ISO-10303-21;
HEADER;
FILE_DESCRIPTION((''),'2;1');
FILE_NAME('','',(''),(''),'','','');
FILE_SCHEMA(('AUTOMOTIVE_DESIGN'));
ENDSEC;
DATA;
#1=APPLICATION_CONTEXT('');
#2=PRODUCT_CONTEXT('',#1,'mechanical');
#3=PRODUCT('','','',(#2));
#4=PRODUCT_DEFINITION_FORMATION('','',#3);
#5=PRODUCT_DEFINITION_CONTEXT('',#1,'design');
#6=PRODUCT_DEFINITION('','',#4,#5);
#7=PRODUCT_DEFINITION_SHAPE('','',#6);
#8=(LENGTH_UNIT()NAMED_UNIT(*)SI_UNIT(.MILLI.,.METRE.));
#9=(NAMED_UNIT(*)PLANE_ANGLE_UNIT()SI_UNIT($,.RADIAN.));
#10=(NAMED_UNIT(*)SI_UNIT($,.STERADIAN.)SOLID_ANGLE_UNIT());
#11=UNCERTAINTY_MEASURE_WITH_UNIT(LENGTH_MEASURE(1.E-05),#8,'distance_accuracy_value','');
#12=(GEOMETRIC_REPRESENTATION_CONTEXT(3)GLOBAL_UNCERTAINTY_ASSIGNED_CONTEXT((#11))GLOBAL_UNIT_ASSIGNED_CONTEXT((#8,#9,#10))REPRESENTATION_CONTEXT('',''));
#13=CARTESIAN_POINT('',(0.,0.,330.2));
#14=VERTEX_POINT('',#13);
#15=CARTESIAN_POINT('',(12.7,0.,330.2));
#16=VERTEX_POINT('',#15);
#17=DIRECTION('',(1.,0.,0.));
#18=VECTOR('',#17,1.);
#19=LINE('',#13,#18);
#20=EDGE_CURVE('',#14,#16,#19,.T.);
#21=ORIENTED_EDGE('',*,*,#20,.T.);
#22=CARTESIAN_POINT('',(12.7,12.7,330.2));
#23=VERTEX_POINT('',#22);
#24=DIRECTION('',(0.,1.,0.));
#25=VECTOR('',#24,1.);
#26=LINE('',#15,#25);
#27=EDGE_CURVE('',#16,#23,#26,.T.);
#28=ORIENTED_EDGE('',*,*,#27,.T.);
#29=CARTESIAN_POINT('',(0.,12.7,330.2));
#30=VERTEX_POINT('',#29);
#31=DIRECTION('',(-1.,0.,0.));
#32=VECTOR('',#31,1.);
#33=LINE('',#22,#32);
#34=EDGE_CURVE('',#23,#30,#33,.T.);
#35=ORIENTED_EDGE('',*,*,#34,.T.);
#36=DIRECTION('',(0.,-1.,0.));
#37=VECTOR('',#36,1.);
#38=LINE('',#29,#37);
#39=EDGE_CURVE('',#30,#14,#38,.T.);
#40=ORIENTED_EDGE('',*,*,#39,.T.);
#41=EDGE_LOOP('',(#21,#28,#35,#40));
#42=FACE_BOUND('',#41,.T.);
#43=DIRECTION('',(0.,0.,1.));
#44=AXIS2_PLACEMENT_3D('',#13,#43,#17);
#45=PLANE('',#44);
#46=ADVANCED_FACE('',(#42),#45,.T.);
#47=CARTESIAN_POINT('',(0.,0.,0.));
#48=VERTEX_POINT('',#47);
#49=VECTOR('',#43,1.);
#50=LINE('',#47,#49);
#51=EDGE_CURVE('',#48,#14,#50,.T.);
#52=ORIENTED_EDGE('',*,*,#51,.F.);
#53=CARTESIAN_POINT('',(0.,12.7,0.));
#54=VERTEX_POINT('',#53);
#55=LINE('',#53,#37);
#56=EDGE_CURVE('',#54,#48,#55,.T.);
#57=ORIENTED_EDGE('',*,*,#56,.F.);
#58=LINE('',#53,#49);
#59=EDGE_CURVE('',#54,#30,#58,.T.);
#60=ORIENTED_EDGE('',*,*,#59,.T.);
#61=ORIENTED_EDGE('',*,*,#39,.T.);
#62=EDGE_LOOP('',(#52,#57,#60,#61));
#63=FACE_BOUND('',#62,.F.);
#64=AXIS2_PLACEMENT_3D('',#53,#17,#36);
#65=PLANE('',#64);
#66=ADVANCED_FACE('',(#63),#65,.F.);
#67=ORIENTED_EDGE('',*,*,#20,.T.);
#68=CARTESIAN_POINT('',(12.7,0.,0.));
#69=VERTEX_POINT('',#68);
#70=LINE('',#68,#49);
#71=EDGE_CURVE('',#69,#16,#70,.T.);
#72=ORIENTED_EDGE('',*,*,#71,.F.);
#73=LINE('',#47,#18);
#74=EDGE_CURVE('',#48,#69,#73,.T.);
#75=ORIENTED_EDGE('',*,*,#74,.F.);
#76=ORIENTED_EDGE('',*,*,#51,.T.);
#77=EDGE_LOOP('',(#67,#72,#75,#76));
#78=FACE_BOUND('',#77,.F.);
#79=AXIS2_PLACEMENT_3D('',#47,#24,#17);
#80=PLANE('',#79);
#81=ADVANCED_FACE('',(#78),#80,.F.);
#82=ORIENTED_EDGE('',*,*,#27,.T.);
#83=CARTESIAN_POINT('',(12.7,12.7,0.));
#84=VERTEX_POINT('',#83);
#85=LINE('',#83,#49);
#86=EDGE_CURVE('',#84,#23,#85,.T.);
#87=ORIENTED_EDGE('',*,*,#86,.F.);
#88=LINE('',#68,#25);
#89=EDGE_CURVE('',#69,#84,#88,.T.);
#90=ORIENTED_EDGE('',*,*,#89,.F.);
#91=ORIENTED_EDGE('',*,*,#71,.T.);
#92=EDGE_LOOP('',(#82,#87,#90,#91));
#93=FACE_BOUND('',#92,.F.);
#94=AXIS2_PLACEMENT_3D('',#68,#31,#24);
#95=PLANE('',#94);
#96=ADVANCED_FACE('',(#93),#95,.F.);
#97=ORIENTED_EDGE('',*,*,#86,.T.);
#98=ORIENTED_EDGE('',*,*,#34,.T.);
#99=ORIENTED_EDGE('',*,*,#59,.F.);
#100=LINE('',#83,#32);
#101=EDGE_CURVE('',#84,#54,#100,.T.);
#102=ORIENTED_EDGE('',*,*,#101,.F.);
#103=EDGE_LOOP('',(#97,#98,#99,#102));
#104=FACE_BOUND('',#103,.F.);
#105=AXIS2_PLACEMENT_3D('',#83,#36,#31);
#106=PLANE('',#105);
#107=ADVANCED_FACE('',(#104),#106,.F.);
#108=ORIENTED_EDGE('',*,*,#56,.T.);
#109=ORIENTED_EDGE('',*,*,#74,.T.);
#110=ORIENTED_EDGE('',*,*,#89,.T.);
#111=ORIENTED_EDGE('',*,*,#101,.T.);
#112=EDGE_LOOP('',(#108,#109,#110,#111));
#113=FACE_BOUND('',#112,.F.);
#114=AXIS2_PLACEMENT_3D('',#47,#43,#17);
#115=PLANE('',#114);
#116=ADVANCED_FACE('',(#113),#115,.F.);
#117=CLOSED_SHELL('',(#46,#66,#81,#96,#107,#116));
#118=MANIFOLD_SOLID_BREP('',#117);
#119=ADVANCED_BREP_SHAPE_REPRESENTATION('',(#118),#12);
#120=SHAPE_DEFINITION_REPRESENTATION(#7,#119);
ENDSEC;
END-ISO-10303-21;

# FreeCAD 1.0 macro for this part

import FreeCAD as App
import Part
import Sketcher
from FreeCAD import Vector
Q = App.Units.Quantity

doc = App.newDocument("Part")
body = doc.addObject("PartDesign::Body", "Body")

# Sketch on XY plane
sketch1 = body.newObject("Sketcher::SketchObject", "Sketch")
sketch1.AttachmentSupport = (doc.getObject("XY_Plane"), [""])
sketch1.MapMode = "FlatFace"
sketch1.addGeometry(Part.LineSegment(Vector(0, 13, 0), Vector(0, 0, 0)), False)
sketch1.addGeometry(Part.LineSegment(Vector(0, 0, 0), Vector(13, 0, 0)), False)
sketch1.addGeometry(Part.LineSegment(Vector(13, 0, 0), Vector(13, 13, 0)), False)
sketch1.addGeometry(Part.LineSegment(Vector(13, 13, 0), Vector(0, 13, 0)), False)
sketch1.addConstraint(Sketcher.Constraint("Coincident", 0, 2, 1, 1))
sketch1.addConstraint(Sketcher.Constraint("Coincident", 1, 2, 2, 1))
sketch1.addConstraint(Sketcher.Constraint("Coincident", 2, 2, 3, 1))
sketch1.addConstraint(Sketcher.Constraint("Coincident", 3, 2, 0, 1))
sketch1.addConstraint(Sketcher.Constraint("Vertical", 0))
sketch1.addConstraint(Sketcher.Constraint("Horizontal", 1))
sketch1.addConstraint(Sketcher.Constraint("Vertical", 2))
sketch1.addConstraint(Sketcher.Constraint("Horizontal", 3))
sketch1.addConstraint(Sketcher.Constraint("Coincident", 0, 2, -1, 1))
sketch1.addConstraint(Sketcher.Constraint("Equal", 3, 0))
sketch1.addConstraint(Sketcher.Constraint("DistanceX", 1, 1, 1, 2, Q("0.5 in")))
pad1 = body.newObject("PartDesign::Pad", "Pad")
pad1.Profile = sketch1
pad1.Length = Q("13 in")

doc.recompute()
